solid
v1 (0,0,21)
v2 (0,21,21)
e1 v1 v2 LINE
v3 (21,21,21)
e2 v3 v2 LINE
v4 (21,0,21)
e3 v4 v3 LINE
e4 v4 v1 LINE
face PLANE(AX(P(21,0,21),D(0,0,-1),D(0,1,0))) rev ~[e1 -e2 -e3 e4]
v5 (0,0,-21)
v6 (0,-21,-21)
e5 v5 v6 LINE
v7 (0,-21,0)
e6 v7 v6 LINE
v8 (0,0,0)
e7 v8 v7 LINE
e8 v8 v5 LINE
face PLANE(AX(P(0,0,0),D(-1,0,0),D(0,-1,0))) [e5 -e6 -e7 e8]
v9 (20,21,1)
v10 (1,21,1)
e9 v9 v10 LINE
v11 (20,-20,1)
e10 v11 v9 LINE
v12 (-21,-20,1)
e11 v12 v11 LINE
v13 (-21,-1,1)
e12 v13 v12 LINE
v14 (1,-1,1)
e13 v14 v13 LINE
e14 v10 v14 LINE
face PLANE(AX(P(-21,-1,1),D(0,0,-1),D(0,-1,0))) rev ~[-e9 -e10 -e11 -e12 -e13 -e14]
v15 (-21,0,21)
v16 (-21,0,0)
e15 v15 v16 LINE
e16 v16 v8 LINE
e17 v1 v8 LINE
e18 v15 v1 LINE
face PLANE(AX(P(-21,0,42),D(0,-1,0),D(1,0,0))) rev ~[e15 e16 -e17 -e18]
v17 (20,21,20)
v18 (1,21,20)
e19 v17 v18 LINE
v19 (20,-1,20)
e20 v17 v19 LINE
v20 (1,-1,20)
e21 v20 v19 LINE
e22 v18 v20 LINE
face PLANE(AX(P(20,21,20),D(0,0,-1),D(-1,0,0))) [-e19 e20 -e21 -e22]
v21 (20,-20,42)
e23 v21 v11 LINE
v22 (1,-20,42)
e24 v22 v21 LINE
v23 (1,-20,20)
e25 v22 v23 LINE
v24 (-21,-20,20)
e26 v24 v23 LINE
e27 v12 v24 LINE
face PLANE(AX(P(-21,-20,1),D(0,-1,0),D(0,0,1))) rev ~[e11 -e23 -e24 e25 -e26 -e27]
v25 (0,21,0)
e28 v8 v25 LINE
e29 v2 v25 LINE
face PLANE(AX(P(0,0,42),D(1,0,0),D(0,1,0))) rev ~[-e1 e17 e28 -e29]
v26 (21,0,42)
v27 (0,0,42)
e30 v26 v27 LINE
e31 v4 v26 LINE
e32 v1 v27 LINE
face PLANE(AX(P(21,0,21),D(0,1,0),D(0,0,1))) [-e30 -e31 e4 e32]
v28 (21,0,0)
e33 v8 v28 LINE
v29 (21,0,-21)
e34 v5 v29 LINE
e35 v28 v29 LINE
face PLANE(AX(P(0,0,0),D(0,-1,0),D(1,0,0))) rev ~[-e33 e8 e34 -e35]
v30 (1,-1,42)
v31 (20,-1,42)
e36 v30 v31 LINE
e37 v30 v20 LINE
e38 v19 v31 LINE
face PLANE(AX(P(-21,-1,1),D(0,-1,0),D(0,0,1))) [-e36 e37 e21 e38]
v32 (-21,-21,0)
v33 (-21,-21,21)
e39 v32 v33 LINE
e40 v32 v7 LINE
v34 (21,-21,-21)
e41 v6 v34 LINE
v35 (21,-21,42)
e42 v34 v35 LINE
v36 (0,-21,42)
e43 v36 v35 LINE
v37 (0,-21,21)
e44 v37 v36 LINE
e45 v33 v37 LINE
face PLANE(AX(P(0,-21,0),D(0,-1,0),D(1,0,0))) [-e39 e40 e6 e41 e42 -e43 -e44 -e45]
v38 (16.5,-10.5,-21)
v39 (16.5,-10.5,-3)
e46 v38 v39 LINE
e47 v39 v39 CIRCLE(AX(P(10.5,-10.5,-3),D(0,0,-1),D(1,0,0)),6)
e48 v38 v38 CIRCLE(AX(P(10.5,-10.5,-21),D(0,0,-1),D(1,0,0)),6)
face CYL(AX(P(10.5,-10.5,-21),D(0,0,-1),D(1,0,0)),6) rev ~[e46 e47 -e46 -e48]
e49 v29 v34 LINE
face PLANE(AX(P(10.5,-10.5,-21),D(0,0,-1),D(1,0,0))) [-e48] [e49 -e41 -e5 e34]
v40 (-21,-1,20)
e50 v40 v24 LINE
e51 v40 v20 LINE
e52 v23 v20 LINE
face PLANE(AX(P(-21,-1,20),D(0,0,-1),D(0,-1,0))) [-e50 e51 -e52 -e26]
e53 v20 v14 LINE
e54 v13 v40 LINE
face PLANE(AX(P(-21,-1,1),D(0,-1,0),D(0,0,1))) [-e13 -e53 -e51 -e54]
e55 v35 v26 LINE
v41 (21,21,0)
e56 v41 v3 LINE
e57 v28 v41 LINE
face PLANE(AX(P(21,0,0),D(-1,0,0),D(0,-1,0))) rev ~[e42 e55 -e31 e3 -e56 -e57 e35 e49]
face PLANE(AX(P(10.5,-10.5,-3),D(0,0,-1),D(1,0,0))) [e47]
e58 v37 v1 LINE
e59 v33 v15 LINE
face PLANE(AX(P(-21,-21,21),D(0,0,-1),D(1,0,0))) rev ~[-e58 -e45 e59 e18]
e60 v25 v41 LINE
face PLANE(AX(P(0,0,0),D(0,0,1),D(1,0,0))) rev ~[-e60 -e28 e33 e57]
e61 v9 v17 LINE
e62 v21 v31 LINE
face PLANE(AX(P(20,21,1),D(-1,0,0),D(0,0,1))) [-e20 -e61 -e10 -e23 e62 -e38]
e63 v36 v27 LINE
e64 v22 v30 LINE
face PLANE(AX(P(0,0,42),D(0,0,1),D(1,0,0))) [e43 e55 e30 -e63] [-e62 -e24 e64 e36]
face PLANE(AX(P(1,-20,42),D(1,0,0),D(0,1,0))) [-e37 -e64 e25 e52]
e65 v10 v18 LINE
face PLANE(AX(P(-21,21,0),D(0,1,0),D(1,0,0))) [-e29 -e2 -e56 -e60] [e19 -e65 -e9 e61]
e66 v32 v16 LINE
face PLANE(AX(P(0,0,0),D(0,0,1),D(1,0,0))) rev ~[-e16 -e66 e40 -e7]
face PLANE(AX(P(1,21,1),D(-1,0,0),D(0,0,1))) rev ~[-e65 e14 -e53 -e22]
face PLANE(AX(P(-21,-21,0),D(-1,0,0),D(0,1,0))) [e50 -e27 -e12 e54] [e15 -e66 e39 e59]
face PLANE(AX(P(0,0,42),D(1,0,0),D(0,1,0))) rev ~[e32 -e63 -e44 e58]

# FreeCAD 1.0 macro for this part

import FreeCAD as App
import Part
import Sketcher

V = App.Vector


def add_polygon(sketch, points):
    """Adds a closed chain of lines whose ends are joined by coincident constraints."""
    first, n = sketch.GeometryCount, len(points)
    for a, b in zip(points, points[1:] + points[:1]):
        sketch.addGeometry(Part.LineSegment(App.Vector(*a, 0), App.Vector(*b, 0)), False)
    for i in range(n):
        sketch.addConstraint(Sketcher.Constraint("Coincident", first + i, 2, first + (i + 1) % n, 1))

doc = App.newDocument("Part")
params = doc.addObject("Spreadsheet::Sheet", "Params")
for row, (alias, value) in enumerate([
    ("sketch1_width", "42 mm"),
    ("pad1_length", "42 mm"),
    ("sketch2_width", "21 mm"),
    ("sketch3_width", "21 mm"),
    ("sketch4_width", "21 mm"),
    ("sketch5_width", "19 mm"),
    ("pocket4_length", "41 mm"),
    ("sketch6_width", "19 mm"),
    ("pocket5_length", "41 mm"),
    ("sketch7_width", "19 mm"),
    ("pocket6_length", "41 mm"),
    ("sketch8_width", "21 mm"),
    ("pad2_length", "21 mm"),
    ("sketch9_diameter", "12 mm"),
    ("pocket7_length", "18 mm"),
], start=1):
    params.set(f"A{row}", alias)
    params.set(f"B{row}", "=" + value)
    params.setAlias(f"B{row}", alias)

body = doc.addObject("PartDesign::Body", "Body")

# Sketch on XY plane
sketch1 = body.newObject("Sketcher::SketchObject", "Sketch")
sketch1.AttachmentSupport = (doc.getObject("XY_Plane"), [""])
sketch1.MapMode = "FlatFace"
add_polygon(sketch1, [(-21, 21), (-21, -21), (21, -21), (21, 21)])  # lines 0-3
sketch1.addConstraint([
    Sketcher.Constraint("Vertical", 0),
    Sketcher.Constraint("Horizontal", 1),
    Sketcher.Constraint("Vertical", 2),
    Sketcher.Constraint("Horizontal", 3),
    Sketcher.Constraint("Symmetric", 0, 2, 2, 2, -1, 1),
    Sketcher.Constraint("Equal", 3, 0),
    Sketcher.Constraint("DistanceX", 1, 1, 1, 2, 42.0),
])
sketch1.setExpression("Constraints[10]", "Params.sketch1_width")
pad1 = body.newObject("PartDesign::Pad", "Pad")
pad1.Profile = sketch1
pad1.setExpression("Length", "Params.pad1_length")

# Sketch on XY plane
sketch2 = body.newObject("Sketcher::SketchObject", "Sketch001")
sketch2.AttachmentSupport = (doc.getObject("XY_Plane"), [""])
sketch2.MapMode = "FlatFace"
sketch2.AttachmentOffset = App.Placement(V(0, 0, 42), App.Rotation())
add_polygon(sketch2, [(-21, 21), (-21, 0), (0, 0), (0, 21)])  # lines 0-3
sketch2.addConstraint([
    Sketcher.Constraint("Vertical", 0),
    Sketcher.Constraint("Horizontal", 1),
    Sketcher.Constraint("Vertical", 2),
    Sketcher.Constraint("Horizontal", 3),
    Sketcher.Constraint("Coincident", 1, 2, -1, 1),
    Sketcher.Constraint("Equal", 3, 0),
    Sketcher.Constraint("DistanceX", 1, 1, 1, 2, 21.0),
])
sketch2.setExpression("Constraints[10]", "Params.sketch2_width")
pocket1 = body.newObject("PartDesign::Pocket", "Pocket")
pocket1.Profile = sketch2
pocket1.Type = "ThroughAll"

# Sketch on XZ plane
sketch3 = body.newObject("Sketcher::SketchObject", "Sketch002")
sketch3.AttachmentSupport = (doc.getObject("XZ_Plane"), [""])
sketch3.MapMode = "FlatFace"
sketch3.AttachmentOffset = App.Placement(V(0, 0, 21), App.Rotation())
add_polygon(sketch3, [(-21, 42), (-21, 21), (0, 21), (0, 42)])  # lines 0-3
sketch3.addConstraint([
    Sketcher.Constraint("Vertical", 0),
    Sketcher.Constraint("Horizontal", 1),
    Sketcher.Constraint("Vertical", 2),
    Sketcher.Constraint("Horizontal", 3),
    Sketcher.Constraint("PointOnObject", 1, 2, -2),
    Sketcher.Constraint("Equal", 3, 0),
    Sketcher.Constraint("DistanceX", 1, 1, 1, 2, 21.0),
    Sketcher.Constraint("DistanceY", -1, 1, 0, 2, 21.0),
])
sketch3.setExpression("Constraints[10]", "Params.sketch3_width")
pocket2 = body.newObject("PartDesign::Pocket", "Pocket001")
pocket2.Profile = sketch3
pocket2.Type = "ThroughAll"

# Sketch on YZ plane
sketch4 = body.newObject("Sketcher::SketchObject", "Sketch003")
sketch4.AttachmentSupport = (doc.getObject("YZ_Plane"), [""])
sketch4.MapMode = "FlatFace"
sketch4.AttachmentOffset = App.Placement(V(0, 0, 21), App.Rotation())
add_polygon(sketch4, [(0, 42), (0, 21), (21, 21), (21, 42)])  # lines 0-3
sketch4.addConstraint([
    Sketcher.Constraint("Vertical", 0),
    Sketcher.Constraint("Horizontal", 1),
    Sketcher.Constraint("Vertical", 2),
    Sketcher.Constraint("Horizontal", 3),
    Sketcher.Constraint("PointOnObject", 0, 2, -2),
    Sketcher.Constraint("Equal", 3, 0),
    Sketcher.Constraint("DistanceX", 1, 1, 1, 2, 21.0),
    Sketcher.Constraint("DistanceY", -1, 1, 0, 2, 21.0),
])
sketch4.setExpression("Constraints[10]", "Params.sketch4_width")
pocket3 = body.newObject("PartDesign::Pocket", "Pocket002")
pocket3.Profile = sketch4
pocket3.Type = "ThroughAll"

# Sketch on XY plane
sketch5 = body.newObject("Sketcher::SketchObject", "Sketch004")
sketch5.AttachmentSupport = (doc.getObject("XY_Plane"), [""])
sketch5.MapMode = "FlatFace"
sketch5.AttachmentOffset = App.Placement(V(0, 0, 42), App.Rotation())
add_polygon(sketch5, [(1, -1), (1, -20), (20, -20), (20, -1)])  # lines 0-3
sketch5.addConstraint([
    Sketcher.Constraint("Vertical", 0),
    Sketcher.Constraint("Horizontal", 1),
    Sketcher.Constraint("Vertical", 2),
    Sketcher.Constraint("Horizontal", 3),
    Sketcher.Constraint("Equal", 3, 0),
    Sketcher.Constraint("DistanceX", 1, 1, 1, 2, 19.0),
    Sketcher.Constraint("DistanceX", -1, 1, 0, 2, 1.0),
    Sketcher.Constraint("DistanceY", 0, 2, -1, 1, 20.0),
])
sketch5.setExpression("Constraints[9]", "Params.sketch5_width")
pocket4 = body.newObject("PartDesign::Pocket", "Pocket003")
pocket4.Profile = sketch5
pocket4.setExpression("Length", "Params.pocket4_length")

# Sketch on YZ plane
sketch6 = body.newObject("Sketcher::SketchObject", "Sketch005")
sketch6.AttachmentSupport = (doc.getObject("YZ_Plane"), [""])
sketch6.MapMode = "FlatFace"
sketch6.AttachmentOffset = App.Placement(V(0, 0, -21), App.Rotation())
add_polygon(sketch6, [(-1, 20), (-1, 1), (-20, 1), (-20, 20)])  # lines 0-3
sketch6.addConstraint([
    Sketcher.Constraint("Vertical", 0),
    Sketcher.Constraint("Horizontal", 1),
    Sketcher.Constraint("Vertical", 2),
    Sketcher.Constraint("Horizontal", 3),
    Sketcher.Constraint("Equal", 3, 0),
    Sketcher.Constraint("DistanceX", 1, 2, 1, 1, 19.0),
    Sketcher.Constraint("DistanceX", 0, 2, -1, 1, 1.0),
    Sketcher.Constraint("DistanceY", -1, 1, 0, 2, 1.0),
])
sketch6.setExpression("Constraints[9]", "Params.sketch6_width")
pocket5 = body.newObject("PartDesign::Pocket", "Pocket004")
pocket5.Profile = sketch6
pocket5.setExpression("Length", "Params.pocket5_length")
pocket5.Reversed = True

# Sketch on XZ plane
sketch7 = body.newObject("Sketcher::SketchObject", "Sketch006")
sketch7.AttachmentSupport = (doc.getObject("XZ_Plane"), [""])
sketch7.MapMode = "FlatFace"
sketch7.AttachmentOffset = App.Placement(V(0, 0, -21), App.Rotation())
add_polygon(sketch7, [(20, 20), (20, 1), (1, 1), (1, 20)])  # lines 0-3
sketch7.addConstraint([
    Sketcher.Constraint("Vertical", 0),
    Sketcher.Constraint("Horizontal", 1),
    Sketcher.Constraint("Vertical", 2),
    Sketcher.Constraint("Horizontal", 3),
    Sketcher.Constraint("Equal", 3, 0),
    Sketcher.Constraint("DistanceX", 1, 2, 1, 1, 19.0),
    Sketcher.Constraint("DistanceX", -1, 1, 0, 2, 20.0),
    Sketcher.Constraint("DistanceY", -1, 1, 0, 2, 1.0),
])
sketch7.setExpression("Constraints[9]", "Params.sketch7_width")
pocket6 = body.newObject("PartDesign::Pocket", "Pocket005")
pocket6.Profile = sketch7
pocket6.setExpression("Length", "Params.pocket6_length")
pocket6.Reversed = True

# Sketch on XY plane
sketch8 = body.newObject("Sketcher::SketchObject", "Sketch007")
sketch8.AttachmentSupport = (doc.getObject("XY_Plane"), [""])
sketch8.MapMode = "FlatFace"
add_polygon(sketch8, [(0, -21), (0, 0), (21, 0), (21, -21)])  # lines 0-3
sketch8.addConstraint([
    Sketcher.Constraint("Vertical", 0),
    Sketcher.Constraint("Horizontal", 1),
    Sketcher.Constraint("Vertical", 2),
    Sketcher.Constraint("Horizontal", 3),
    Sketcher.Constraint("Coincident", 0, 2, -1, 1),
    Sketcher.Constraint("Equal", 3, 0),
    Sketcher.Constraint("DistanceX", 1, 1, 1, 2, 21.0),
])
sketch8.setExpression("Constraints[10]", "Params.sketch8_width")
pad2 = body.newObject("PartDesign::Pad", "Pad001")
pad2.Profile = sketch8
pad2.setExpression("Length", "Params.pad2_length")
pad2.Reversed = True

# Sketch on XY plane
sketch9 = body.newObject("Sketcher::SketchObject", "Sketch008")
sketch9.AttachmentSupport = (doc.getObject("XY_Plane"), [""])
sketch9.MapMode = "FlatFace"
sketch9.AttachmentOffset = App.Placement(V(0, 0, -21), App.Rotation())
sketch9.addGeometry(Part.Circle(V(10, -10, 0), V(0, 0, 1), 6), False)
sketch9.addConstraint([
    Sketcher.Constraint("Diameter", 0, 12.0),
    Sketcher.Constraint("DistanceX", -1, 1, 0, 3, 10.5),
    Sketcher.Constraint("DistanceY", 0, 3, -1, 1, 10.5),
])
sketch9.setExpression("Constraints[0]", "Params.sketch9_diameter")
pocket7 = body.newObject("PartDesign::Pocket", "Pocket006")
pocket7.Profile = sketch9
pocket7.setExpression("Length", "Params.pocket7_length")
pocket7.Reversed = True

doc.recompute()
